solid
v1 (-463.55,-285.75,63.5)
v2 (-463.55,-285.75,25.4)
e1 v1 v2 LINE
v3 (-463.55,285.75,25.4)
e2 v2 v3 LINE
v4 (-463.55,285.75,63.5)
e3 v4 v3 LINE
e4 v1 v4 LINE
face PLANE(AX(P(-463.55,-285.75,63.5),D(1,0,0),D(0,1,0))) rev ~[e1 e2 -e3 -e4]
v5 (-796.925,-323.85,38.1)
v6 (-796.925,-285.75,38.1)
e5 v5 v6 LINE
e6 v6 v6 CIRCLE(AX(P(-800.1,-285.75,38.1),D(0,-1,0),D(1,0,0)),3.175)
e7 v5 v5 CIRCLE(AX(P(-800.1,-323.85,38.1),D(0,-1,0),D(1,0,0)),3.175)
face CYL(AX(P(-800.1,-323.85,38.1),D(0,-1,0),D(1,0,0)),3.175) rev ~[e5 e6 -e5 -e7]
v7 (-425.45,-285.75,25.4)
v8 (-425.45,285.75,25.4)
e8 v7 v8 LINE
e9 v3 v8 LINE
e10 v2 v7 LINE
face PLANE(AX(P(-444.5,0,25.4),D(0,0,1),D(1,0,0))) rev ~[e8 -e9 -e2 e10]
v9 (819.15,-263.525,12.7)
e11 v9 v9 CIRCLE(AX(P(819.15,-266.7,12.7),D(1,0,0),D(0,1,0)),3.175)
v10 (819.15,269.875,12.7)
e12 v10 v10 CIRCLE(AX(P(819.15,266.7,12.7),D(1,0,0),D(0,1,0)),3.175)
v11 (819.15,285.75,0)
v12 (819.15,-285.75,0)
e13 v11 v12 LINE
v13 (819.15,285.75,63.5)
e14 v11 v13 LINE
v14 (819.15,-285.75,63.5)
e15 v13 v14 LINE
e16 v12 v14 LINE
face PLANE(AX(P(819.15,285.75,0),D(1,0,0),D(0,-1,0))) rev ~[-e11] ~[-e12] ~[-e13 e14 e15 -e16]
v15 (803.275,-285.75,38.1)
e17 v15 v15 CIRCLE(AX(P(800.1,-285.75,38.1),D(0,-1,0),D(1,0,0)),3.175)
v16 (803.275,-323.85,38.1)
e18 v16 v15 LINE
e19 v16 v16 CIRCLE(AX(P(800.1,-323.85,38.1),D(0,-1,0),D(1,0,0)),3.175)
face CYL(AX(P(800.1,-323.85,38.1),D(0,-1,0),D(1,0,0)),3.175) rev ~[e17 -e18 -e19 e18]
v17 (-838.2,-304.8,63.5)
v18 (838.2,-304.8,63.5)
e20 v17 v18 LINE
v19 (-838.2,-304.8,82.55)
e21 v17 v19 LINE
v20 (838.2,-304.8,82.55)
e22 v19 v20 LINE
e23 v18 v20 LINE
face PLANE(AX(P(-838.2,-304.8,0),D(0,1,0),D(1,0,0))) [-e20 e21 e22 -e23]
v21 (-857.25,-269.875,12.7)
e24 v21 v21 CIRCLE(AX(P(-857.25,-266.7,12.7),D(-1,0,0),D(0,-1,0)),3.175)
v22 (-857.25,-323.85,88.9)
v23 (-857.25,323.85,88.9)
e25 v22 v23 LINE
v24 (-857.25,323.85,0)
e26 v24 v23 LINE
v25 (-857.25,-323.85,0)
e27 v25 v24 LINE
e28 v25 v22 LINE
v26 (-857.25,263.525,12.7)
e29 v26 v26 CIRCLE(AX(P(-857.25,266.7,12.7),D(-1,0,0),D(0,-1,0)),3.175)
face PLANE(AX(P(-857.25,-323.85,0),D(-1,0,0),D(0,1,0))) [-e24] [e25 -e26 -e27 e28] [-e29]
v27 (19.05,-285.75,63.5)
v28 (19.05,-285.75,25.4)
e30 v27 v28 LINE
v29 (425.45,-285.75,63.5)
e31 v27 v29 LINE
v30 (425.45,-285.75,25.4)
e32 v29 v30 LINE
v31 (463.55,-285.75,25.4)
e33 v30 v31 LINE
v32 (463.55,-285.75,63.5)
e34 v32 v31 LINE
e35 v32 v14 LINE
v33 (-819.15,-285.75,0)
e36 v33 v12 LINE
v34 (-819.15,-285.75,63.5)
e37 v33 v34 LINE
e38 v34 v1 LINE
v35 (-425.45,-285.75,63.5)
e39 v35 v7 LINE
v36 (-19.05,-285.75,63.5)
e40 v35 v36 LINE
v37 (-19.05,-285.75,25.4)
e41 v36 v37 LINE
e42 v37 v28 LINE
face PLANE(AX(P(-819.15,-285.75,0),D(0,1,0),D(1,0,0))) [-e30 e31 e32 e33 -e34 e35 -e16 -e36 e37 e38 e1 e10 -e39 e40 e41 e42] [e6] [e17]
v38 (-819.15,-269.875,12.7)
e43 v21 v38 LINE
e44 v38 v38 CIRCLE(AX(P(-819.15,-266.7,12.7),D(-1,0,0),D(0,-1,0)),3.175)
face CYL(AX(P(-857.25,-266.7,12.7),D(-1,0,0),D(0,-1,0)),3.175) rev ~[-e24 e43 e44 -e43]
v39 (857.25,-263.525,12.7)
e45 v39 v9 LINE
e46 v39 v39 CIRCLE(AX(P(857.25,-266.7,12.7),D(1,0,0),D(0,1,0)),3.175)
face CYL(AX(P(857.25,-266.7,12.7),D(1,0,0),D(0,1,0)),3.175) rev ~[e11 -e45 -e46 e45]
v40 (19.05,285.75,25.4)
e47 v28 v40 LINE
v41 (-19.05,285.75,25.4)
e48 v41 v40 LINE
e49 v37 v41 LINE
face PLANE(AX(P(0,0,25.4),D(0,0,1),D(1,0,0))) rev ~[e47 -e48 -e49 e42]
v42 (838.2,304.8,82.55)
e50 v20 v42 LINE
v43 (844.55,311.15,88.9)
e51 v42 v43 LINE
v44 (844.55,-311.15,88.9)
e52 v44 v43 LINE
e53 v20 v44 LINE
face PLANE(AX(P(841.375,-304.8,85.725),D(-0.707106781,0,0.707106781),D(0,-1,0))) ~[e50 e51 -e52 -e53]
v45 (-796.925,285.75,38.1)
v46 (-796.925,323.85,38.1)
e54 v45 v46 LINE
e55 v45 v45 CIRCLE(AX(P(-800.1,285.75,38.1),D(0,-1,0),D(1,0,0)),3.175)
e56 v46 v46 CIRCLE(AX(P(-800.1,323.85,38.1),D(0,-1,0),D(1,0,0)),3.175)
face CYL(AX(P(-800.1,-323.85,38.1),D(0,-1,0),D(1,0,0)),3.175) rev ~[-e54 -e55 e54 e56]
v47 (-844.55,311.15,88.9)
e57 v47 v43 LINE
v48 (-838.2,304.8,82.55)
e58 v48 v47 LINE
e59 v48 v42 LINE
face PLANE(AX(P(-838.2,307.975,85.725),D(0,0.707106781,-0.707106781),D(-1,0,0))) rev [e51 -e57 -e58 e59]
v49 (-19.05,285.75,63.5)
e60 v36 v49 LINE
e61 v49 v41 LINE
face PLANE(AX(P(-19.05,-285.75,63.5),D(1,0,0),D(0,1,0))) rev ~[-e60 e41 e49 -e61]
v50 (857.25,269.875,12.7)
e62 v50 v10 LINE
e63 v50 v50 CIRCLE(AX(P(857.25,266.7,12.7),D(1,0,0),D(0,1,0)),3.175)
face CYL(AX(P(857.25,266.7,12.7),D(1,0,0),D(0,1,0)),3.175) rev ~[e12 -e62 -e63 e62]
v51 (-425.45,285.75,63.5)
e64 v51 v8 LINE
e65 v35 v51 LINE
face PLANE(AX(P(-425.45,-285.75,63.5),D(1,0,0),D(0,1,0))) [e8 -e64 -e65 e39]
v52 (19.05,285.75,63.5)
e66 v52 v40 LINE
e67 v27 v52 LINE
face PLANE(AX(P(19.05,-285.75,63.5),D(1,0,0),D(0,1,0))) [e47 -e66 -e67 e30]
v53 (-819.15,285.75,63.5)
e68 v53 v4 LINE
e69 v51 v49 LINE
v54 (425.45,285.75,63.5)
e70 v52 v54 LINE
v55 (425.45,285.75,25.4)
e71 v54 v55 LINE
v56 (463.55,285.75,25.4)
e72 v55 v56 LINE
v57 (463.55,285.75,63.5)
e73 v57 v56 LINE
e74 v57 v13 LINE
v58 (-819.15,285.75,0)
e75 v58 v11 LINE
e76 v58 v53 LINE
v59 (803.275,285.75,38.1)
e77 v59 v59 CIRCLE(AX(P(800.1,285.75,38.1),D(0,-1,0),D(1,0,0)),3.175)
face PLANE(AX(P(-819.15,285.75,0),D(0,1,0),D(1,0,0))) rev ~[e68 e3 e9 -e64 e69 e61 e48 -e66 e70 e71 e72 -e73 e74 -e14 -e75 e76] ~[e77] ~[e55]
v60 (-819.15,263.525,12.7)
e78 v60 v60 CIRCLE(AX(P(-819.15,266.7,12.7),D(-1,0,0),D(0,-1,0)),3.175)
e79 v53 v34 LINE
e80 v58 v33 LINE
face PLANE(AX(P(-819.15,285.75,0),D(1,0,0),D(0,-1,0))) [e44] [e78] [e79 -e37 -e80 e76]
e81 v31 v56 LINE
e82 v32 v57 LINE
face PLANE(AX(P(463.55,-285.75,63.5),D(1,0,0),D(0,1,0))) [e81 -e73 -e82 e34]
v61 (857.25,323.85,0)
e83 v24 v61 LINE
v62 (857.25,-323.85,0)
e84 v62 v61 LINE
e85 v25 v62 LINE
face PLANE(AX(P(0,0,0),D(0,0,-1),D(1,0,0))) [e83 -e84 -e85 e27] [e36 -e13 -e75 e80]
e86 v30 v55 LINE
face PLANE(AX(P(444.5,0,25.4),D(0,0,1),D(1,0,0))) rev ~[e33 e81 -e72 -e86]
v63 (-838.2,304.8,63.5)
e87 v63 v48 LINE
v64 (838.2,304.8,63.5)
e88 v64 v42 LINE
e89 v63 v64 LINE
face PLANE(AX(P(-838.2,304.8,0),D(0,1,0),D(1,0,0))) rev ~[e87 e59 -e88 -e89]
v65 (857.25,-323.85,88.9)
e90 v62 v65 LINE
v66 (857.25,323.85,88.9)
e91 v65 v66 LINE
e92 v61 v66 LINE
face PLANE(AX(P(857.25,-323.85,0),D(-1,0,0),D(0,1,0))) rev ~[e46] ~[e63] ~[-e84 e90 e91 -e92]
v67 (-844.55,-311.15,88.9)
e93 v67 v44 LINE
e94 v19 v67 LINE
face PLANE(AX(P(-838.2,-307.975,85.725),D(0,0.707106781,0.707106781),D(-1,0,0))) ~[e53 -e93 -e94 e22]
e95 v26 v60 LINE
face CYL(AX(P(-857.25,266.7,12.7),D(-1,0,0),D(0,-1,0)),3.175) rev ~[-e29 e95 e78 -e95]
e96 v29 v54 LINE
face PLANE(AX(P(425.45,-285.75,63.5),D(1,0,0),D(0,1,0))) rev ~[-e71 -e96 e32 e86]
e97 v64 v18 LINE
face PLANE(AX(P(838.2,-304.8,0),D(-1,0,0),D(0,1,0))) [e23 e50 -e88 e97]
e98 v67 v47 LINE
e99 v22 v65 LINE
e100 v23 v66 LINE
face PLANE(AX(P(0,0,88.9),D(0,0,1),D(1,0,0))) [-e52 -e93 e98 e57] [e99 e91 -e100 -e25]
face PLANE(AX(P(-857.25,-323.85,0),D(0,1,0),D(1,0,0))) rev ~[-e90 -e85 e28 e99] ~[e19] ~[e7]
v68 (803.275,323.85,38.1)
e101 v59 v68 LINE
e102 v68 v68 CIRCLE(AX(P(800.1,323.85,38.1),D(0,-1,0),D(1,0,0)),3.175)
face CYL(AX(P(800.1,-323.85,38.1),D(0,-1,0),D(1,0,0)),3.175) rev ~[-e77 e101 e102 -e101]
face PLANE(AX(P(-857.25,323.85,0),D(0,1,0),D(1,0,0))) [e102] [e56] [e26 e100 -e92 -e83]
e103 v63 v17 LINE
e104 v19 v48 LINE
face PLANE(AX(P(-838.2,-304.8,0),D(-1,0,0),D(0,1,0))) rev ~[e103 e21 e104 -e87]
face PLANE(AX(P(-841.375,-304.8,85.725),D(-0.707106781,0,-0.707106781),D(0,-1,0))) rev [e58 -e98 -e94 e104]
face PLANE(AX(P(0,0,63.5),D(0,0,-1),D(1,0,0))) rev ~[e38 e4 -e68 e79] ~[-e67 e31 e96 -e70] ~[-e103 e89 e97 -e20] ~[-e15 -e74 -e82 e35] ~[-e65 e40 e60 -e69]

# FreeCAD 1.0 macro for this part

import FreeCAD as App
import Part
import Sketcher

V = App.Vector
Q = App.Units.Quantity


def edges_at(feature, points):
    """Names of the edges that pass closest to the given points."""
    edges = feature.Shape.Edges
    near = lambda p: min(range(len(edges)), key=lambda i: edges[i].distToShape(Part.Vertex(*p))[0])
    return sorted({f"Edge{near(p) + 1}" for p in points})

doc = App.newDocument("Part")
body = doc.addObject("PartDesign::Body", "Body")

# Sketch on XY plane
sketch1 = doc.addObject("Sketcher::SketchObject", "Sketch")
body.addObject(sketch1)
sketch1.AttachmentSupport = (doc.XY_Plane, [""])
sketch1.MapMode = "FlatFace"
sketch1.addGeometry(Part.LineSegment(V(-857, 324, 0), V(-857, -324, 0)), False)
sketch1.addGeometry(Part.LineSegment(V(-857, -324, 0), V(857, -324, 0)), False)
sketch1.addGeometry(Part.LineSegment(V(857, -324, 0), V(857, 324, 0)), False)
sketch1.addGeometry(Part.LineSegment(V(857, 324, 0), V(-857, 324, 0)), False)
sketch1.addGeometry(Part.LineSegment(V(838, -305, 0), V(-838, -305, 0)), False)
sketch1.addGeometry(Part.LineSegment(V(-838, -305, 0), V(-838, 305, 0)), False)
sketch1.addGeometry(Part.LineSegment(V(-838, 305, 0), V(838, 305, 0)), False)
sketch1.addGeometry(Part.LineSegment(V(838, 305, 0), V(838, -305, 0)), False)
sketch1.addConstraint(Sketcher.Constraint("Coincident", 0, 2, 1, 1))
sketch1.addConstraint(Sketcher.Constraint("Coincident", 1, 2, 2, 1))
sketch1.addConstraint(Sketcher.Constraint("Coincident", 2, 2, 3, 1))
sketch1.addConstraint(Sketcher.Constraint("Coincident", 3, 2, 0, 1))
sketch1.addConstraint(Sketcher.Constraint("Coincident", 4, 2, 5, 1))
sketch1.addConstraint(Sketcher.Constraint("Coincident", 5, 2, 6, 1))
sketch1.addConstraint(Sketcher.Constraint("Coincident", 6, 2, 7, 1))
sketch1.addConstraint(Sketcher.Constraint("Coincident", 7, 2, 4, 1))
sketch1.addConstraint(Sketcher.Constraint("Vertical", 0))
sketch1.addConstraint(Sketcher.Constraint("Horizontal", 1))
sketch1.addConstraint(Sketcher.Constraint("Vertical", 2))
sketch1.addConstraint(Sketcher.Constraint("Horizontal", 3))
sketch1.addConstraint(Sketcher.Constraint("Horizontal", 4))
sketch1.addConstraint(Sketcher.Constraint("Vertical", 5))
sketch1.addConstraint(Sketcher.Constraint("Horizontal", 6))
sketch1.addConstraint(Sketcher.Constraint("Vertical", 7))
sketch1.addConstraint(Sketcher.Constraint("Symmetric", 0, 2, 2, 2, -1, 1))
sketch1.addConstraint(Sketcher.Constraint("Symmetric", 4, 2, 6, 2, -1, 1))
sketch1.addConstraint(Sketcher.Constraint("DistanceX", 4, 2, 4, 1, Q("66 in")))
sketch1.addConstraint(Sketcher.Constraint("DistanceY", 5, 1, 5, 2, Q("24 in")))
sketch1.addConstraint(Sketcher.Constraint("DistanceX", 1, 1, 1, 2, Q("67.5 in")))
sketch1.addConstraint(Sketcher.Constraint("DistanceY", 0, 2, 0, 1, Q("25.5 in")))
pad1 = doc.addObject("PartDesign::Pad", "Pad")
body.addObject(pad1)
pad1.Profile = sketch1
pad1.Length = Q("3.5 in")

# Sketch on XY plane
sketch2 = doc.addObject("Sketcher::SketchObject", "Sketch001")
body.addObject(sketch2)
sketch2.AttachmentSupport = (doc.XY_Plane, [""])
sketch2.MapMode = "FlatFace"
sketch2.addGeometry(Part.LineSegment(V(-838, -305, 0), V(-838, 305, 0)), False)
sketch2.addGeometry(Part.LineSegment(V(-838, 305, 0), V(838, 305, 0)), False)
sketch2.addGeometry(Part.LineSegment(V(838, 305, 0), V(838, -305, 0)), False)
sketch2.addGeometry(Part.LineSegment(V(838, -305, 0), V(-838, -305, 0)), False)
sketch2.addGeometry(Part.LineSegment(V(819, 286, 0), V(-819, 286, 0)), False)
sketch2.addGeometry(Part.LineSegment(V(-819, 286, 0), V(-819, -286, 0)), False)
sketch2.addGeometry(Part.LineSegment(V(-819, -286, 0), V(819, -286, 0)), False)
sketch2.addGeometry(Part.LineSegment(V(819, -286, 0), V(819, 286, 0)), False)
sketch2.addConstraint(Sketcher.Constraint("Coincident", 0, 2, 1, 1))
sketch2.addConstraint(Sketcher.Constraint("Coincident", 1, 2, 2, 1))
sketch2.addConstraint(Sketcher.Constraint("Coincident", 2, 2, 3, 1))
sketch2.addConstraint(Sketcher.Constraint("Coincident", 3, 2, 0, 1))
sketch2.addConstraint(Sketcher.Constraint("Coincident", 4, 2, 5, 1))
sketch2.addConstraint(Sketcher.Constraint("Coincident", 5, 2, 6, 1))
sketch2.addConstraint(Sketcher.Constraint("Coincident", 6, 2, 7, 1))
sketch2.addConstraint(Sketcher.Constraint("Coincident", 7, 2, 4, 1))
sketch2.addConstraint(Sketcher.Constraint("Vertical", 0))
sketch2.addConstraint(Sketcher.Constraint("Horizontal", 1))
sketch2.addConstraint(Sketcher.Constraint("Vertical", 2))
sketch2.addConstraint(Sketcher.Constraint("Horizontal", 3))
sketch2.addConstraint(Sketcher.Constraint("Horizontal", 4))
sketch2.addConstraint(Sketcher.Constraint("Vertical", 5))
sketch2.addConstraint(Sketcher.Constraint("Horizontal", 6))
sketch2.addConstraint(Sketcher.Constraint("Vertical", 7))
sketch2.addConstraint(Sketcher.Constraint("Symmetric", 0, 2, 2, 2, -1, 1))
sketch2.addConstraint(Sketcher.Constraint("Symmetric", 4, 2, 6, 2, -1, 1))
sketch2.addConstraint(Sketcher.Constraint("DistanceX", 1, 1, 1, 2, Q("66 in")))
sketch2.addConstraint(Sketcher.Constraint("DistanceY", 0, 1, 0, 2, Q("24 in")))
sketch2.addConstraint(Sketcher.Constraint("DistanceX", 4, 2, 4, 1, Q("64.5 in")))
sketch2.addConstraint(Sketcher.Constraint("DistanceY", 5, 2, 5, 1, Q("22.5 in")))
pad2 = doc.addObject("PartDesign::Pad", "Pad001")
body.addObject(pad2)
pad2.Profile = sketch2
pad2.Length = Q("2.5 in")

# Sketch on XY plane
sketch3 = doc.addObject("Sketcher::SketchObject", "Sketch002")
body.addObject(sketch3)
sketch3.AttachmentSupport = (doc.XY_Plane, [""])
sketch3.MapMode = "FlatFace"
sketch3.AttachmentOffset = App.Placement(V(0, 0, 2.5 * 25.4), App.Rotation())
sketch3.addGeometry(Part.LineSegment(V(-19, 286, 0), V(-19, -286, 0)), False)
sketch3.addGeometry(Part.LineSegment(V(-19, -286, 0), V(19, -286, 0)), False)
sketch3.addGeometry(Part.LineSegment(V(19, -286, 0), V(19, 286, 0)), False)
sketch3.addGeometry(Part.LineSegment(V(19, 286, 0), V(-19, 286, 0)), False)
sketch3.addGeometry(Part.LineSegment(V(425, 286, 0), V(425, -286, 0)), False)
sketch3.addGeometry(Part.LineSegment(V(425, -286, 0), V(464, -286, 0)), False)
sketch3.addGeometry(Part.LineSegment(V(464, -286, 0), V(464, 286, 0)), False)
sketch3.addGeometry(Part.LineSegment(V(464, 286, 0), V(425, 286, 0)), False)
sketch3.addGeometry(Part.LineSegment(V(-464, 286, 0), V(-464, -286, 0)), False)
sketch3.addGeometry(Part.LineSegment(V(-464, -286, 0), V(-425, -286, 0)), False)
sketch3.addGeometry(Part.LineSegment(V(-425, -286, 0), V(-425, 286, 0)), False)
sketch3.addGeometry(Part.LineSegment(V(-425, 286, 0), V(-464, 286, 0)), False)
sketch3.addConstraint(Sketcher.Constraint("Coincident", 0, 2, 1, 1))
sketch3.addConstraint(Sketcher.Constraint("Coincident", 1, 2, 2, 1))
sketch3.addConstraint(Sketcher.Constraint("Coincident", 2, 2, 3, 1))
sketch3.addConstraint(Sketcher.Constraint("Coincident", 3, 2, 0, 1))
sketch3.addConstraint(Sketcher.Constraint("Coincident", 4, 2, 5, 1))
sketch3.addConstraint(Sketcher.Constraint("Coincident", 5, 2, 6, 1))
sketch3.addConstraint(Sketcher.Constraint("Coincident", 6, 2, 7, 1))
sketch3.addConstraint(Sketcher.Constraint("Coincident", 7, 2, 4, 1))
sketch3.addConstraint(Sketcher.Constraint("Coincident", 8, 2, 9, 1))
sketch3.addConstraint(Sketcher.Constraint("Coincident", 9, 2, 10, 1))
sketch3.addConstraint(Sketcher.Constraint("Coincident", 10, 2, 11, 1))
sketch3.addConstraint(Sketcher.Constraint("Coincident", 11, 2, 8, 1))
sketch3.addConstraint(Sketcher.Constraint("Vertical", 0))
sketch3.addConstraint(Sketcher.Constraint("Horizontal", 1))
sketch3.addConstraint(Sketcher.Constraint("Vertical", 2))
sketch3.addConstraint(Sketcher.Constraint("Horizontal", 3))
sketch3.addConstraint(Sketcher.Constraint("Vertical", 4))
sketch3.addConstraint(Sketcher.Constraint("Horizontal", 5))
sketch3.addConstraint(Sketcher.Constraint("Vertical", 6))
sketch3.addConstraint(Sketcher.Constraint("Horizontal", 7))
sketch3.addConstraint(Sketcher.Constraint("Vertical", 8))
sketch3.addConstraint(Sketcher.Constraint("Horizontal", 9))
sketch3.addConstraint(Sketcher.Constraint("Vertical", 10))
sketch3.addConstraint(Sketcher.Constraint("Horizontal", 11))
sketch3.addConstraint(Sketcher.Constraint("Symmetric", 0, 2, 2, 2, -1, 1))
sketch3.addConstraint(Sketcher.Constraint("Symmetric", 6, 2, 8, 2, -1, 1))
sketch3.addConstraint(Sketcher.Constraint("Symmetric", 4, 2, 10, 2, -1, 1))
sketch3.addConstraint(Sketcher.Constraint("Horizontal", 1, 2, 4, 2))
sketch3.addConstraint(Sketcher.Constraint("Horizontal", 3, 2, 6, 2))
sketch3.addConstraint(Sketcher.Constraint("Equal", 3, 5))
sketch3.addConstraint(Sketcher.Constraint("DistanceX", 1, 1, 1, 2, Q("1.5 in")))
sketch3.addConstraint(Sketcher.Constraint("DistanceY", 0, 2, 0, 1, Q("22.5 in")))
sketch3.addConstraint(Sketcher.Constraint("DistanceX", 1, 2, 4, 2, Q("16 in")))
pad3 = doc.addObject("PartDesign::Pad", "Pad002")
body.addObject(pad3)
pad3.Profile = sketch3
pad3.Length = Q("1.5 in")
pad3.Reversed = True

# Sketch on XZ plane
sketch4 = doc.addObject("Sketcher::SketchObject", "Sketch003")
body.addObject(sketch4)
sketch4.AttachmentSupport = (doc.XZ_Plane, [""])
sketch4.MapMode = "FlatFace"
sketch4.AttachmentOffset = App.Placement(V(0, 0, 12.75 * 25.4), App.Rotation())
sketch4.addGeometry(Part.Circle(V(-800.1, 38.1, 0), V(0, 0, 1), 3.2), False)
sketch4.addGeometry(Part.Circle(V(800.1, 38.1, 0), V(0, 0, 1), 3.2), False)
sketch4.addConstraint(Sketcher.Constraint("Equal", 0, 1))
sketch4.addConstraint(Sketcher.Constraint("Symmetric", 0, 3, 1, 3, -2))
sketch4.addConstraint(Sketcher.Constraint("Diameter", 0, Q("0.25 in")))
sketch4.addConstraint(Sketcher.Constraint("DistanceX", 0, 3, 1, 3, Q("63 in")))
sketch4.addConstraint(Sketcher.Constraint("DistanceY", -1, 1, 0, 3, Q("1.5 in")))
pocket1 = doc.addObject("PartDesign::Pocket", "Pocket")
body.addObject(pocket1)
pocket1.Profile = sketch4
pocket1.Type = "ThroughAll"

# Sketch on YZ plane
sketch5 = doc.addObject("Sketcher::SketchObject", "Sketch004")
body.addObject(sketch5)
sketch5.AttachmentSupport = (doc.YZ_Plane, [""])
sketch5.MapMode = "FlatFace"
sketch5.AttachmentOffset = App.Placement(V(0, 0, 33.75 * 25.4), App.Rotation())
sketch5.addGeometry(Part.Circle(V(-266.7, 12.7, 0), V(0, 0, 1), 3.2), False)
sketch5.addGeometry(Part.Circle(V(266.7, 12.7, 0), V(0, 0, 1), 3.2), False)
sketch5.addConstraint(Sketcher.Constraint("Equal", 0, 1))
sketch5.addConstraint(Sketcher.Constraint("Symmetric", 0, 3, 1, 3, -2))
sketch5.addConstraint(Sketcher.Constraint("Diameter", 0, Q("0.25 in")))
sketch5.addConstraint(Sketcher.Constraint("DistanceX", 0, 3, 1, 3, Q("21 in")))
sketch5.addConstraint(Sketcher.Constraint("DistanceY", -1, 1, 0, 3, Q("0.5 in")))
pocket2 = doc.addObject("PartDesign::Pocket", "Pocket001")
body.addObject(pocket2)
pocket2.Profile = sketch5
pocket2.Length = Q("2 in")

# Sketch on YZ plane
sketch6 = doc.addObject("Sketcher::SketchObject", "Sketch005")
body.addObject(sketch6)
sketch6.AttachmentSupport = (doc.YZ_Plane, [""])
sketch6.MapMode = "FlatFace"
sketch6.AttachmentOffset = App.Placement(V(0, 0, -33.75 * 25.4), App.Rotation())
sketch6.addGeometry(Part.Circle(V(266.7, 12.7, 0), V(0, 0, 1), 3.2), False)
sketch6.addGeometry(Part.Circle(V(-266.7, 12.7, 0), V(0, 0, 1), 3.2), False)
sketch6.addConstraint(Sketcher.Constraint("Equal", 0, 1))
sketch6.addConstraint(Sketcher.Constraint("Symmetric", 0, 3, 1, 3, -2))
sketch6.addConstraint(Sketcher.Constraint("Diameter", 0, Q("0.25 in")))
sketch6.addConstraint(Sketcher.Constraint("DistanceX", 1, 3, 0, 3, Q("21 in")))
sketch6.addConstraint(Sketcher.Constraint("DistanceY", -1, 1, 0, 3, Q("0.5 in")))
pocket3 = doc.addObject("PartDesign::Pocket", "Pocket002")
body.addObject(pocket3)
pocket3.Profile = sketch6
pocket3.Length = Q("2 in")
pocket3.Reversed = True
doc.recompute()

chamfer = doc.addObject("PartDesign::Chamfer", "Chamfer")
body.addObject(chamfer)
chamfer.Base = (pocket3, edges_at(pocket3, [
    (0, 304.8, 88.9),
    (838.2, 0, 88.9),
    (-838.2, 0, 88.9),
    (0, -304.8, 88.9),
]))
chamfer.Size = Q("0.25 in")

doc.recompute()
